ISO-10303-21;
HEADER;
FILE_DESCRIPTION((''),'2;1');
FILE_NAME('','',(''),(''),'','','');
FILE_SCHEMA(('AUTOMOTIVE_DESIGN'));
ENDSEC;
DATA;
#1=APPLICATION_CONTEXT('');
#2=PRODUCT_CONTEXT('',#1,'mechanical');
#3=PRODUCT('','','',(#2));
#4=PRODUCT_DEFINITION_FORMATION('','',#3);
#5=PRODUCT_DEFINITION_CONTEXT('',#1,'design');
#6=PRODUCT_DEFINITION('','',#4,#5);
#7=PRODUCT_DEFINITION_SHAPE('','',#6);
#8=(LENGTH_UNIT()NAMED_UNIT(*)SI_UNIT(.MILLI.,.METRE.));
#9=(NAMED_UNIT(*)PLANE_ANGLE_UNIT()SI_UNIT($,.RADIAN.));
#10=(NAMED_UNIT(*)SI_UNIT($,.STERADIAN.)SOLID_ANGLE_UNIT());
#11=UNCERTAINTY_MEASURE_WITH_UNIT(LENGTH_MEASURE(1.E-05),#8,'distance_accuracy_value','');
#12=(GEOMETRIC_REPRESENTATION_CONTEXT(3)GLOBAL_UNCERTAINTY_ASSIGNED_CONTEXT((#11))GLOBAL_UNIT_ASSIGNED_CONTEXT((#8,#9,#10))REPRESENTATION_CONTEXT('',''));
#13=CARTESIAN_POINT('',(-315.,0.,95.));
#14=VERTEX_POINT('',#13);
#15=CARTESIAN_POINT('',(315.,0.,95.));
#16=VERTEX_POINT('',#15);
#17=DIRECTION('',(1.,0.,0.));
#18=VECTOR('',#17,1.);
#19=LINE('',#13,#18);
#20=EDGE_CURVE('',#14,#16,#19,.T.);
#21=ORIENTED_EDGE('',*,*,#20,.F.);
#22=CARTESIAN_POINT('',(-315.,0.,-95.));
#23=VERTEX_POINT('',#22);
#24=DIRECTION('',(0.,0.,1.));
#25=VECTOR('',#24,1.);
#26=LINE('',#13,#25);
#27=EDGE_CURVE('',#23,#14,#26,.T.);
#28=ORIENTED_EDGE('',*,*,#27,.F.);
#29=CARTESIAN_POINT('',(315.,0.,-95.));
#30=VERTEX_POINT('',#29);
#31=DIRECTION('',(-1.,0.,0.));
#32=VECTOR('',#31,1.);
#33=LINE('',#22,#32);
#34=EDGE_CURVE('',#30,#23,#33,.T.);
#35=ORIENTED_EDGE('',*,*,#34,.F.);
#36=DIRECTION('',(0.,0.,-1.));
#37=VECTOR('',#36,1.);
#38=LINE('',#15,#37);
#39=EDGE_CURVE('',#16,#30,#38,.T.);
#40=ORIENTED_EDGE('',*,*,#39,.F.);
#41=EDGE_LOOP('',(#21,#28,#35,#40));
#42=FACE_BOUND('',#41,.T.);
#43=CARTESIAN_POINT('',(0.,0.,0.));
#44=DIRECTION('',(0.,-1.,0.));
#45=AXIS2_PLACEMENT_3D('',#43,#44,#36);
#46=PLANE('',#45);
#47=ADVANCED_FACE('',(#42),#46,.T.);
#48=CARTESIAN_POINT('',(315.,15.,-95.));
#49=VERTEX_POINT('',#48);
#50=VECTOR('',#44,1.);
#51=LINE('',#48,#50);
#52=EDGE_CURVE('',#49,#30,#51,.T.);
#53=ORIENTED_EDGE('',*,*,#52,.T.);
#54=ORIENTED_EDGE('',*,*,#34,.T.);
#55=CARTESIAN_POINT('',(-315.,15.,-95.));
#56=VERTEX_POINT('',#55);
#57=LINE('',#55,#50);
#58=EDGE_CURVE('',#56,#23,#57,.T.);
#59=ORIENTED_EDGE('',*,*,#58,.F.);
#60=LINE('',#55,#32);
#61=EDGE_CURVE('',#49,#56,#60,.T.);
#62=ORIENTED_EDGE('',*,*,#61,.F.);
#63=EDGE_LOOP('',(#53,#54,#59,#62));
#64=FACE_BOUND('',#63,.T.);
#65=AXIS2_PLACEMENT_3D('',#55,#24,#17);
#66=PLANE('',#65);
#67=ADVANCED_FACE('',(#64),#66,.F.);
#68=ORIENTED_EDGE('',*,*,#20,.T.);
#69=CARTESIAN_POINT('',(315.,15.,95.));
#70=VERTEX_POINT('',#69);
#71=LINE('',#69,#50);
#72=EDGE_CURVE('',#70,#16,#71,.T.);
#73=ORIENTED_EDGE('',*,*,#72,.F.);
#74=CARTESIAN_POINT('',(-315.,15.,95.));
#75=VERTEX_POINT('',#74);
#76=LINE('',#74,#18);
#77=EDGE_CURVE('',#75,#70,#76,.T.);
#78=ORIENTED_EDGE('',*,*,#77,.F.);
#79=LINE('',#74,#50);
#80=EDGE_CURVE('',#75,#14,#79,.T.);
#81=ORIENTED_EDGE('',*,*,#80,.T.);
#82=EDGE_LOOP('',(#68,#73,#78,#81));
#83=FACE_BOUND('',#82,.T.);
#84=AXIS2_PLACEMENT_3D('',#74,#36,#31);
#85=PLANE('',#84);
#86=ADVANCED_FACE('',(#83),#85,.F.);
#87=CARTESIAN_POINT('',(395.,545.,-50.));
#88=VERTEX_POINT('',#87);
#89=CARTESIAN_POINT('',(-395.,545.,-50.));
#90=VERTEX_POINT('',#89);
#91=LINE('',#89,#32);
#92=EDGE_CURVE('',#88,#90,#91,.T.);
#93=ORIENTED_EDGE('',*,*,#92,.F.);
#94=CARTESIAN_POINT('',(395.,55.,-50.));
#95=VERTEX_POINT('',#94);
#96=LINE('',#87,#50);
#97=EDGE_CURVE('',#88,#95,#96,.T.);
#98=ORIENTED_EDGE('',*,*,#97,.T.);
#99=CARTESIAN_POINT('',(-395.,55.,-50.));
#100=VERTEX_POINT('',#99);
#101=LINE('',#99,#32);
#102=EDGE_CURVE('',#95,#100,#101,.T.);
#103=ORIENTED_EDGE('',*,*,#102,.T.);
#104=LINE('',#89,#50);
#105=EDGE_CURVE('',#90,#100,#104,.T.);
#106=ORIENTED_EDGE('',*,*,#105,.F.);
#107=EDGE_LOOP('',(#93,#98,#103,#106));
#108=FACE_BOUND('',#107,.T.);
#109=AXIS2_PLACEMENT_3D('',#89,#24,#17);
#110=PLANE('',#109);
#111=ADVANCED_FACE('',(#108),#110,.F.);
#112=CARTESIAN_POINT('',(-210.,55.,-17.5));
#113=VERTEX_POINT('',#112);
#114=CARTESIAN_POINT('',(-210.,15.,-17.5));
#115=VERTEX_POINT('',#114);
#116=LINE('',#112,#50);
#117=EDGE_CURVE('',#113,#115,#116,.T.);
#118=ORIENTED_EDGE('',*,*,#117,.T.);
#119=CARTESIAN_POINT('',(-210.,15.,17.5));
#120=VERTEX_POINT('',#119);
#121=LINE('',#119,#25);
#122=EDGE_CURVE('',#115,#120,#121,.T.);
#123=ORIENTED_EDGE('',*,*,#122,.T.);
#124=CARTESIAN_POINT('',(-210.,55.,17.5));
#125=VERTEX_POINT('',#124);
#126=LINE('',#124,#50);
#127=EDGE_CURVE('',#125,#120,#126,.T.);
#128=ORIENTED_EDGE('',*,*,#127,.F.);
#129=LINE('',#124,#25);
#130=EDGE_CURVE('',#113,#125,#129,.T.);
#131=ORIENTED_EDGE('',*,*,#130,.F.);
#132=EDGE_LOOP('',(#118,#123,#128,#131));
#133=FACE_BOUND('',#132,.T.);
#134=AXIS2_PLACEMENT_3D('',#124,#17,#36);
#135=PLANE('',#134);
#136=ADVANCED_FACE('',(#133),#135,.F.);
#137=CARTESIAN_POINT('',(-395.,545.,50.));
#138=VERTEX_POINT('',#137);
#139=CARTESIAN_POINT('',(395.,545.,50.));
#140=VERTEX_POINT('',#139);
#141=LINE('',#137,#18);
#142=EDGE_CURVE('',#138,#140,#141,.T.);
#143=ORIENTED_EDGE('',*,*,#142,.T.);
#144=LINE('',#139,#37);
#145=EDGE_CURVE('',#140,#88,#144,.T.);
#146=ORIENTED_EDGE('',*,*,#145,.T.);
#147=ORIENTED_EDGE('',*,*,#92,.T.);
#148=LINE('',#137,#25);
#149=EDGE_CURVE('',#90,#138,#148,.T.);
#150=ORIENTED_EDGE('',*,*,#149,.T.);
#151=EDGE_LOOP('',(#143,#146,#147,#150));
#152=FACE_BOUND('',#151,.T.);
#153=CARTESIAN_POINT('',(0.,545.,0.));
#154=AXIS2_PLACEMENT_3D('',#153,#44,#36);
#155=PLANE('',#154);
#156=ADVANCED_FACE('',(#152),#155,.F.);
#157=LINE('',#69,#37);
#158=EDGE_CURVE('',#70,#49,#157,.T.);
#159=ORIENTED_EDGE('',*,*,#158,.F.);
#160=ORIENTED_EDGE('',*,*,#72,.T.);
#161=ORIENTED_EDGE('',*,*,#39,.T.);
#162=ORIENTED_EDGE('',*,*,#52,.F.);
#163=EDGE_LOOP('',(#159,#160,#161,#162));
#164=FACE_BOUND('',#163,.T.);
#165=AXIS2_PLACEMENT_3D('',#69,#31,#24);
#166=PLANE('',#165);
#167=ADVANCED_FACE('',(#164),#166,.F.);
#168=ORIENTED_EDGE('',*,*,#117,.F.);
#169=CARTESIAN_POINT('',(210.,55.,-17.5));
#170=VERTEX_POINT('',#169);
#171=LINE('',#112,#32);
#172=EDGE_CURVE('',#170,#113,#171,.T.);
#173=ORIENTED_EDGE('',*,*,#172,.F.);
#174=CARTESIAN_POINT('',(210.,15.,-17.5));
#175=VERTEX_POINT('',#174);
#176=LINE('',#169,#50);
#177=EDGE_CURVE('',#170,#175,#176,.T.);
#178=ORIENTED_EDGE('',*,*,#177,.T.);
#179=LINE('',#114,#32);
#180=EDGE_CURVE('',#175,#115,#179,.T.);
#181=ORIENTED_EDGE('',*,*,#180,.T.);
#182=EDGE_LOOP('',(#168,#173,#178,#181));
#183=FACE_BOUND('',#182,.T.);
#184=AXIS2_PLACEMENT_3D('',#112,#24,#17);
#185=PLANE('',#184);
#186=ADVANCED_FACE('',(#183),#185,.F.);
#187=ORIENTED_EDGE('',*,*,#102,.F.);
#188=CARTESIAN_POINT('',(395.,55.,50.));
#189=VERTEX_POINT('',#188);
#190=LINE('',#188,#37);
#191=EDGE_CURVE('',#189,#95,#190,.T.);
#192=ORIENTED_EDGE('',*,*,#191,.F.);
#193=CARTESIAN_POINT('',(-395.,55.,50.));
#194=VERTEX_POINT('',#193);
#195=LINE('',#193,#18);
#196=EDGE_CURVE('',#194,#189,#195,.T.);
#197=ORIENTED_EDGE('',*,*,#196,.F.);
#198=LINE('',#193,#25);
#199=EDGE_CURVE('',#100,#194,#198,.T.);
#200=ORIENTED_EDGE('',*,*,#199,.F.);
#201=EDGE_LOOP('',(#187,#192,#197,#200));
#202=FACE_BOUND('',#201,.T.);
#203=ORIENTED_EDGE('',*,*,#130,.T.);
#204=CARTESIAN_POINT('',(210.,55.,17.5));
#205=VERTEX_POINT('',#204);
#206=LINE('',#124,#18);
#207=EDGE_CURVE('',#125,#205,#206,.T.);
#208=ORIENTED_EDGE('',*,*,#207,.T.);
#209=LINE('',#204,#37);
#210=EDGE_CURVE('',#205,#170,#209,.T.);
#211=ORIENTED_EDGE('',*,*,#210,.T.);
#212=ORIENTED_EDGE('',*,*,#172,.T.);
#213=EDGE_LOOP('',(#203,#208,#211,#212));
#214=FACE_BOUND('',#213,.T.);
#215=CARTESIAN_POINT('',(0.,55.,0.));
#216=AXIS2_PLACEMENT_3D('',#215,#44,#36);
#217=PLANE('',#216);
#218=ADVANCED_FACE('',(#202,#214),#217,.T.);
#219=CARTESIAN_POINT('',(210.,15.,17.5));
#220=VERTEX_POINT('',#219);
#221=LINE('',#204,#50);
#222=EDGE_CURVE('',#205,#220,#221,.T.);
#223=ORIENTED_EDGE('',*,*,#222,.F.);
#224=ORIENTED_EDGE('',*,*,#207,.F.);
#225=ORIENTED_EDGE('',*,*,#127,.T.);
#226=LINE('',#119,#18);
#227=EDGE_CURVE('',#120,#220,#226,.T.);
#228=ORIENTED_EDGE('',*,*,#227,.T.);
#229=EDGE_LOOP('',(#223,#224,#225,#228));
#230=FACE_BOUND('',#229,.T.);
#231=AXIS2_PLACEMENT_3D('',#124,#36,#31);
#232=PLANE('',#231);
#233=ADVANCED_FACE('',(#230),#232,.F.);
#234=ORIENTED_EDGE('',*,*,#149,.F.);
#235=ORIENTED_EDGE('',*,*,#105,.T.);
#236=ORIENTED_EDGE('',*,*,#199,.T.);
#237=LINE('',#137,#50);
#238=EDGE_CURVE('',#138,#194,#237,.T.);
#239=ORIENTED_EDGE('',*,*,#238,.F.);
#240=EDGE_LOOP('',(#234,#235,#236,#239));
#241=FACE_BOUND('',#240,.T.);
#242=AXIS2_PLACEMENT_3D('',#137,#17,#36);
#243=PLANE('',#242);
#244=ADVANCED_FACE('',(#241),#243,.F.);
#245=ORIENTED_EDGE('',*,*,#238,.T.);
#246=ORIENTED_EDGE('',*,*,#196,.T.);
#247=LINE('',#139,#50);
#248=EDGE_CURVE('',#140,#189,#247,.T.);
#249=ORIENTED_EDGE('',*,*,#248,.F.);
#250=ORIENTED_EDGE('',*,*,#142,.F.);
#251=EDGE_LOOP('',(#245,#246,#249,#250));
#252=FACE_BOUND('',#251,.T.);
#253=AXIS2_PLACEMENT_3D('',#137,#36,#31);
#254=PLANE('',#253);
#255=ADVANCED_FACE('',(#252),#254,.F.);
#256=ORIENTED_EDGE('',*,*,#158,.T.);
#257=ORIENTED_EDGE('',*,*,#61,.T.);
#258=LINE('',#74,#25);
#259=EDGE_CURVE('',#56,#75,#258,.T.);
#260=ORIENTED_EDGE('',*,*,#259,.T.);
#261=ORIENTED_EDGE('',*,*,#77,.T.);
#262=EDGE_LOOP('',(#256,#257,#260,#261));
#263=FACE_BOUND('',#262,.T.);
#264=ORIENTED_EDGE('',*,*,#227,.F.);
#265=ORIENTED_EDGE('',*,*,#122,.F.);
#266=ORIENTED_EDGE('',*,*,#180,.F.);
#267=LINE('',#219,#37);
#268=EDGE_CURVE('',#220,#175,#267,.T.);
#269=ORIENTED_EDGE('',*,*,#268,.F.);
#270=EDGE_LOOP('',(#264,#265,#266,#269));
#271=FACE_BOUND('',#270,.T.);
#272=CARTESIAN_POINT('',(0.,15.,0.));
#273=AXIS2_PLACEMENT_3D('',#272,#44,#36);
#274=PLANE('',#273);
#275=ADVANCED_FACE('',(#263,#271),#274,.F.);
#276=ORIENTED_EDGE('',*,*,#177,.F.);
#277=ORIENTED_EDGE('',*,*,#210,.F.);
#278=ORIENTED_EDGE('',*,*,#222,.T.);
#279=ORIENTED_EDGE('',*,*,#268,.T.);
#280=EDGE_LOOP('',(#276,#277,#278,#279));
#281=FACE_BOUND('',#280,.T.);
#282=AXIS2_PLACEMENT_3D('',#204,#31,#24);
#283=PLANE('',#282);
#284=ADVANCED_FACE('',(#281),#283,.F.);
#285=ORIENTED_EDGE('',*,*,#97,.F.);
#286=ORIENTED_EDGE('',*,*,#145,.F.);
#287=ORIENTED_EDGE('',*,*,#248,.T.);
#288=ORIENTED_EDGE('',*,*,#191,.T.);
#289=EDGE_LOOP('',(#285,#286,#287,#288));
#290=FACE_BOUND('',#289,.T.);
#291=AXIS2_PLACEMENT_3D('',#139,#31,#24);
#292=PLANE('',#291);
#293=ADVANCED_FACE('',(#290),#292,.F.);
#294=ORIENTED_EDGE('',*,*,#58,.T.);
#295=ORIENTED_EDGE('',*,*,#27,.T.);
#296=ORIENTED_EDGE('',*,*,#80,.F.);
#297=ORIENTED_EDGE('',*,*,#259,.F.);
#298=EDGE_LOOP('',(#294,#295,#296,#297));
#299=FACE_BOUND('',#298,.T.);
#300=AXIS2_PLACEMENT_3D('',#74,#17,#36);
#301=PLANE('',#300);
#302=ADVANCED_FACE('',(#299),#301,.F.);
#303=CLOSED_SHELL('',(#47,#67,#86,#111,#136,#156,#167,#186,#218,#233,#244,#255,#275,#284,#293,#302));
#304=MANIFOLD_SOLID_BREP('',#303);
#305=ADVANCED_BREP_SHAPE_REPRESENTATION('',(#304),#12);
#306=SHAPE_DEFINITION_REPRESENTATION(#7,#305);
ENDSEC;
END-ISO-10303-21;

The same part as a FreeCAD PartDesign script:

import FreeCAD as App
import Part
import Sketcher

doc = App.newDocument("Part")
body = doc.addObject("PartDesign::Body", "Body")

# Sketch on XZ plane
sketch1 = body.newObject("Sketcher::SketchObject", "Sketch")
sketch1.AttachmentSupport = (doc.getObject("XZ_Plane"), [""])
sketch1.MapMode = "FlatFace"
sketch1.addGeometry([
    Part.LineSegment(App.Vector(-315, -95, 0), App.Vector(-315, 95, 0)),
    Part.LineSegment(App.Vector(-315, 95, 0), App.Vector(315, 95, 0)),
    Part.LineSegment(App.Vector(315, 95, 0), App.Vector(315, -95, 0)),
    Part.LineSegment(App.Vector(315, -95, 0), App.Vector(-315, -95, 0)),
], False)
sketch1.addConstraint([
    Sketcher.Constraint("Coincident", 0, 2, 1, 1),
    Sketcher.Constraint("Coincident", 1, 2, 2, 1),
    Sketcher.Constraint("Coincident", 2, 2, 3, 1),
    Sketcher.Constraint("Coincident", 3, 2, 0, 1),
    Sketcher.Constraint("Vertical", 0),
    Sketcher.Constraint("Horizontal", 1),
    Sketcher.Constraint("Vertical", 2),
    Sketcher.Constraint("Horizontal", 3),
    Sketcher.Constraint("Symmetric", 0, 2, 2, 2, -1, 1),
    Sketcher.Constraint("DistanceX", 1, 1, 1, 2, 630.0),
    Sketcher.Constraint("DistanceY", 0, 1, 0, 2, 190.0),
])
pad1 = body.newObject("PartDesign::Pad", "Pad")
pad1.Profile = sketch1
pad1.Length = 15
pad1.Reversed = True

# Sketch on XZ plane
sketch2 = body.newObject("Sketcher::SketchObject", "Sketch001")
sketch2.AttachmentSupport = (doc.getObject("XZ_Plane"), [""])
sketch2.MapMode = "FlatFace"
sketch2.AttachmentOffset = App.Placement(App.Vector(0, 0, -15), App.Rotation())
sketch2.addGeometry([
    Part.LineSegment(App.Vector(-210, -18, 0), App.Vector(-210, 18, 0)),
    Part.LineSegment(App.Vector(-210, 18, 0), App.Vector(210, 18, 0)),
    Part.LineSegment(App.Vector(210, 18, 0), App.Vector(210, -18, 0)),
    Part.LineSegment(App.Vector(210, -18, 0), App.Vector(-210, -18, 0)),
], False)
sketch2.addConstraint([
    Sketcher.Constraint("Coincident", 0, 2, 1, 1),
    Sketcher.Constraint("Coincident", 1, 2, 2, 1),
    Sketcher.Constraint("Coincident", 2, 2, 3, 1),
    Sketcher.Constraint("Coincident", 3, 2, 0, 1),
    Sketcher.Constraint("Vertical", 0),
    Sketcher.Constraint("Horizontal", 1),
    Sketcher.Constraint("Vertical", 2),
    Sketcher.Constraint("Horizontal", 3),
    Sketcher.Constraint("Symmetric", 0, 2, 2, 2, -1, 1),
    Sketcher.Constraint("DistanceX", 1, 1, 1, 2, 420.0),
    Sketcher.Constraint("DistanceY", 0, 1, 0, 2, 35.0),
])
pad2 = body.newObject("PartDesign::Pad", "Pad001")
pad2.Profile = sketch2
pad2.Length = 40
pad2.Reversed = True

# Sketch on XZ plane
sketch3 = body.newObject("Sketcher::SketchObject", "Sketch002")
sketch3.AttachmentSupport = (doc.getObject("XZ_Plane"), [""])
sketch3.MapMode = "FlatFace"
sketch3.AttachmentOffset = App.Placement(App.Vector(0, 0, -55), App.Rotation())
sketch3.addGeometry([
    Part.LineSegment(App.Vector(-395, -50, 0), App.Vector(-395, 50, 0)),
    Part.LineSegment(App.Vector(-395, 50, 0), App.Vector(395, 50, 0)),
    Part.LineSegment(App.Vector(395, 50, 0), App.Vector(395, -50, 0)),
    Part.LineSegment(App.Vector(395, -50, 0), App.Vector(-395, -50, 0)),
], False)
sketch3.addConstraint([
    Sketcher.Constraint("Coincident", 0, 2, 1, 1),
    Sketcher.Constraint("Coincident", 1, 2, 2, 1),
    Sketcher.Constraint("Coincident", 2, 2, 3, 1),
    Sketcher.Constraint("Coincident", 3, 2, 0, 1),
    Sketcher.Constraint("Vertical", 0),
    Sketcher.Constraint("Horizontal", 1),
    Sketcher.Constraint("Vertical", 2),
    Sketcher.Constraint("Horizontal", 3),
    Sketcher.Constraint("Symmetric", 0, 2, 2, 2, -1, 1),
    Sketcher.Constraint("DistanceX", 1, 1, 1, 2, 790.0),
    Sketcher.Constraint("DistanceY", 0, 1, 0, 2, 100.0),
])
pad3 = body.newObject("PartDesign::Pad", "Pad002")
pad3.Profile = sketch3
pad3.Length = 490
pad3.Reversed = True

doc.recompute()
